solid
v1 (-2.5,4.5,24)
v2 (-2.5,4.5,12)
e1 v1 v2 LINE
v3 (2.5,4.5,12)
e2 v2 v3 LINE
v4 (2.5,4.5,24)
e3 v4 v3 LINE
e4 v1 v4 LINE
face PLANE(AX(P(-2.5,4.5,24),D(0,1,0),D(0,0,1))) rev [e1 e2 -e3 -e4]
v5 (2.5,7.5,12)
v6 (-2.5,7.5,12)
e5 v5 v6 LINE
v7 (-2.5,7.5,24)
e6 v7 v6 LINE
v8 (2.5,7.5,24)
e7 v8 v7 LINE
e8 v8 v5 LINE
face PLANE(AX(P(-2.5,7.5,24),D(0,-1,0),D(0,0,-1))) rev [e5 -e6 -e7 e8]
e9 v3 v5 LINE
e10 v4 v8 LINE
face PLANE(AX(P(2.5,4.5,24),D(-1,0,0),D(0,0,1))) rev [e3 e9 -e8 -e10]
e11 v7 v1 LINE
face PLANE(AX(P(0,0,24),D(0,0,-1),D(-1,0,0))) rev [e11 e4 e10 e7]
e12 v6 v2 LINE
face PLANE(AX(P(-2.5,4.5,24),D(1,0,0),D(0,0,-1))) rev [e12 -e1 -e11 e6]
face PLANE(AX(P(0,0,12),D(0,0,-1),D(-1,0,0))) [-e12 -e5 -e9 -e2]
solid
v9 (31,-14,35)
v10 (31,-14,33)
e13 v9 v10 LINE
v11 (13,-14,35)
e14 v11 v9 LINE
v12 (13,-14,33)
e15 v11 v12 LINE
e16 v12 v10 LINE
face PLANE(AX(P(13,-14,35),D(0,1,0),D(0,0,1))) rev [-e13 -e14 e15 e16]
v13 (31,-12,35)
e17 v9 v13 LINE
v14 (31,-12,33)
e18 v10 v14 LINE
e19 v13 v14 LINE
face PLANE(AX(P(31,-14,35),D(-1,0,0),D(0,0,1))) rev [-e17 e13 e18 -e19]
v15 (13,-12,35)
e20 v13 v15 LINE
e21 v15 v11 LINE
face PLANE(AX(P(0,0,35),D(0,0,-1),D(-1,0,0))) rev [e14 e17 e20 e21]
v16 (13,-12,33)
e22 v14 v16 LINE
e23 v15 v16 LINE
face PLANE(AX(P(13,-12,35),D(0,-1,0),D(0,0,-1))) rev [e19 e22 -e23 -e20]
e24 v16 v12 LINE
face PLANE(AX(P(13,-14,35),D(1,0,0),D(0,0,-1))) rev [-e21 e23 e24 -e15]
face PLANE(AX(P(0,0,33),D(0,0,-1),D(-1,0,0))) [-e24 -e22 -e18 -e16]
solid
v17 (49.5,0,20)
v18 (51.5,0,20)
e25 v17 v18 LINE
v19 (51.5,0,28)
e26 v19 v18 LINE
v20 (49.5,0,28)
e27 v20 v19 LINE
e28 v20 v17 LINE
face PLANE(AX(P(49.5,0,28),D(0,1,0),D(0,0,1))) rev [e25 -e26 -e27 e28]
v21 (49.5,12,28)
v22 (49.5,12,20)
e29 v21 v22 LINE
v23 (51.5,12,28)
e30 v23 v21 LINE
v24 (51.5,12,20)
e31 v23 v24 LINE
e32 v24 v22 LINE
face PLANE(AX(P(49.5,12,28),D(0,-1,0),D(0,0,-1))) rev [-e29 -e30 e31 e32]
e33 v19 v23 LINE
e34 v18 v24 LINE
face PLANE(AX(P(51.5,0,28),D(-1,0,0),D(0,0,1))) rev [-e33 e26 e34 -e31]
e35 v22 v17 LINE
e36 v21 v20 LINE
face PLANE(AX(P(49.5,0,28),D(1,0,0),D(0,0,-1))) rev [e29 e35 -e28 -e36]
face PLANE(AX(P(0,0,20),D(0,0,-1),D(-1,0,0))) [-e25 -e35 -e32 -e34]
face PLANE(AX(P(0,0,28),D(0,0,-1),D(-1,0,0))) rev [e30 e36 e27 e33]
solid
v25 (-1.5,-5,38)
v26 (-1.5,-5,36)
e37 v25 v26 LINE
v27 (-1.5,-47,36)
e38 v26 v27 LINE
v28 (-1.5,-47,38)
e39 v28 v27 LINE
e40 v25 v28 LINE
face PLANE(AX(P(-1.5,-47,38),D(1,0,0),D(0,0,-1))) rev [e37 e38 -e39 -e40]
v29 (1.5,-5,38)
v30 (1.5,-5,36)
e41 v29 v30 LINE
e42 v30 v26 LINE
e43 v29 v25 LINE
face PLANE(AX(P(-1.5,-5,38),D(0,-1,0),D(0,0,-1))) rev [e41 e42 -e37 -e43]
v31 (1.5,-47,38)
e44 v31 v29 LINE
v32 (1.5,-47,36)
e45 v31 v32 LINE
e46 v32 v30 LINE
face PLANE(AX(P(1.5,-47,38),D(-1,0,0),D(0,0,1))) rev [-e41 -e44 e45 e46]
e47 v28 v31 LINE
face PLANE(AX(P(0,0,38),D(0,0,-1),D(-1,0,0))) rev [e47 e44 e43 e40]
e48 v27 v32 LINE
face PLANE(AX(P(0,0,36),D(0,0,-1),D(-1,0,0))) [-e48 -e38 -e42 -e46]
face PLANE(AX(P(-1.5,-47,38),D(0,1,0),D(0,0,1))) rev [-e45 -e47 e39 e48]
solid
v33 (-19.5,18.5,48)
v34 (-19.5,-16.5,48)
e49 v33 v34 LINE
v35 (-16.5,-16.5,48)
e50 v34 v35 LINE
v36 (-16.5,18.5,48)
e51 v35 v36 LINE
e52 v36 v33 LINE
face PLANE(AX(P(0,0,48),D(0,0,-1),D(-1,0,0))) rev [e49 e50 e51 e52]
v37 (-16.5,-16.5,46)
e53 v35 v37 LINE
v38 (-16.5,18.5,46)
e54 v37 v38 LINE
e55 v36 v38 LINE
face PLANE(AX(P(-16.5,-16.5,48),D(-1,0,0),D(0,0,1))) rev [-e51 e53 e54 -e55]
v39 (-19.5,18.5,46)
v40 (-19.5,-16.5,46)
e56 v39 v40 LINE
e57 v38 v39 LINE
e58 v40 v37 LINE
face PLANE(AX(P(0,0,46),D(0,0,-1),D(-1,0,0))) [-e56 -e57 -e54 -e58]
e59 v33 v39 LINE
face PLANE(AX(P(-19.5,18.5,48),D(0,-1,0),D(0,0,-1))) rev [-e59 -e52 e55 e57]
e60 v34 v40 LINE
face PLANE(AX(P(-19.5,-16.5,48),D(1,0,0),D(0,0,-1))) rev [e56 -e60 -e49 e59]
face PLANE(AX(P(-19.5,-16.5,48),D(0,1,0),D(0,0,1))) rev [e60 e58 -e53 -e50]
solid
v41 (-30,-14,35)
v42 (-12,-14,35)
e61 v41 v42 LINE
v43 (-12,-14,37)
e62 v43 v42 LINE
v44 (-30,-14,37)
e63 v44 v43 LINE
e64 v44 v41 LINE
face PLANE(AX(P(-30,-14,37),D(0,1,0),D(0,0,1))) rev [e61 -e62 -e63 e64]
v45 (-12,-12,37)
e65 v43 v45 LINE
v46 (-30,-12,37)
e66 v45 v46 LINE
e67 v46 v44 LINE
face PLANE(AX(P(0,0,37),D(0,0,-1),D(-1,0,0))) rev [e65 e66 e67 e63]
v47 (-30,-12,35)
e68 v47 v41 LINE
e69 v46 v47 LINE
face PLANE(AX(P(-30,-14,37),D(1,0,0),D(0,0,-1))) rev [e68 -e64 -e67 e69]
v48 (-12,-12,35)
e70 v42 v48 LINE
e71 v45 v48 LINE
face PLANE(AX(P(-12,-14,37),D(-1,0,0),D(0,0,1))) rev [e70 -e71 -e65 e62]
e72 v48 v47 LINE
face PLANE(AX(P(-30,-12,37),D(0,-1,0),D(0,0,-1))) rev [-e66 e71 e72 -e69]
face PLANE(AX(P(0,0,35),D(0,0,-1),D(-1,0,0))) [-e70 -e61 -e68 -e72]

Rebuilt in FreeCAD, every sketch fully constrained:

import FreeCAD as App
import Part
import Sketcher
from FreeCAD import Vector

doc = App.newDocument("Part")
body = doc.addObject("PartDesign::Body", "Body")

sketch1 = body.newObject("Sketcher::SketchObject", "Sketch")
sketch1.AttachmentSupport = (doc.getObject("XY_Plane"), [""])
sketch1.MapMode = "FlatFace"
sketch1.AttachmentOffset = App.Placement(Vector(0, 0, 36), App.Rotation())
sketch1.addGeometry([
    Part.LineSegment(Vector(-1.5, -5, 0), Vector(-1.5, -47, 0)),
    Part.LineSegment(Vector(-1.5, -47, 0), Vector(1.5, -47, 0)),
    Part.LineSegment(Vector(1.5, -47, 0), Vector(1.5, -5, 0)),
    Part.LineSegment(Vector(1.5, -5, 0), Vector(-1.5, -5, 0)),
], False)
sketch1.addConstraint([
    Sketcher.Constraint("Coincident", 0, 2, 1, 1),
    Sketcher.Constraint("Coincident", 1, 2, 2, 1),
    Sketcher.Constraint("Coincident", 2, 2, 3, 1),
    Sketcher.Constraint("Coincident", 3, 2, 0, 1),
    Sketcher.Constraint("Vertical", 0),
    Sketcher.Constraint("Horizontal", 1),
    Sketcher.Constraint("Vertical", 2),
    Sketcher.Constraint("Horizontal", 3),
    Sketcher.Constraint("DistanceX", 1, 1, 1, 2, 3.0),
    Sketcher.Constraint("DistanceY", 0, 2, 0, 1, 42.0),
    Sketcher.Constraint("DistanceY", 0, 2, -1, 1, 47.0),
    Sketcher.Constraint("DistanceX", 0, 2, -1, 1, 1.5),
])
pad1 = body.newObject("PartDesign::Pad", "Pad")
pad1.Profile = sketch1
pad1.Length = 2
body2 = doc.addObject("PartDesign::Body", "Body001")

sketch2 = body2.newObject("Sketcher::SketchObject", "Sketch001")
sketch2.AttachmentSupport = (doc.getObject("XY_Plane001"), [""])
sketch2.MapMode = "FlatFace"
sketch2.AttachmentOffset = App.Placement(Vector(0, 0, 46), App.Rotation())
sketch2.addGeometry([
    Part.LineSegment(Vector(-19.5, 18.5, 0), Vector(-19.5, -16.5, 0)),
    Part.LineSegment(Vector(-19.5, -16.5, 0), Vector(-16.5, -16.5, 0)),
    Part.LineSegment(Vector(-16.5, -16.5, 0), Vector(-16.5, 18.5, 0)),
    Part.LineSegment(Vector(-16.5, 18.5, 0), Vector(-19.5, 18.5, 0)),
], False)
sketch2.addConstraint([
    Sketcher.Constraint("Coincident", 0, 2, 1, 1),
    Sketcher.Constraint("Coincident", 1, 2, 2, 1),
    Sketcher.Constraint("Coincident", 2, 2, 3, 1),
    Sketcher.Constraint("Coincident", 3, 2, 0, 1),
    Sketcher.Constraint("Vertical", 0),
    Sketcher.Constraint("Horizontal", 1),
    Sketcher.Constraint("Vertical", 2),
    Sketcher.Constraint("Horizontal", 3),
    Sketcher.Constraint("DistanceX", 1, 1, 1, 2, 3.0),
    Sketcher.Constraint("DistanceY", 0, 2, 0, 1, 35.0),
    Sketcher.Constraint("DistanceX", 0, 2, -1, 1, 19.5),
    Sketcher.Constraint("DistanceY", 0, 2, -1, 1, 16.5),
])
pad2 = body2.newObject("PartDesign::Pad", "Pad001")
pad2.Profile = sketch2
pad2.Length = 2
body3 = doc.addObject("PartDesign::Body", "Body002")

sketch3 = body3.newObject("Sketcher::SketchObject", "Sketch002")
sketch3.AttachmentSupport = (doc.getObject("XY_Plane002"), [""])
sketch3.MapMode = "FlatFace"
sketch3.AttachmentOffset = App.Placement(Vector(0, 0, 35), App.Rotation())
sketch3.addGeometry([
    Part.LineSegment(Vector(-30, -12, 0), Vector(-30, -14, 0)),
    Part.LineSegment(Vector(-30, -14, 0), Vector(-12, -14, 0)),
    Part.LineSegment(Vector(-12, -14, 0), Vector(-12, -12, 0)),
    Part.LineSegment(Vector(-12, -12, 0), Vector(-30, -12, 0)),
], False)
sketch3.addConstraint([
    Sketcher.Constraint("Coincident", 0, 2, 1, 1),
    Sketcher.Constraint("Coincident", 1, 2, 2, 1),
    Sketcher.Constraint("Coincident", 2, 2, 3, 1),
    Sketcher.Constraint("Coincident", 3, 2, 0, 1),
    Sketcher.Constraint("Vertical", 0),
    Sketcher.Constraint("Horizontal", 1),
    Sketcher.Constraint("Vertical", 2),
    Sketcher.Constraint("Horizontal", 3),
    Sketcher.Constraint("DistanceX", 1, 1, 1, 2, 18.0),
    Sketcher.Constraint("DistanceY", 0, 2, 0, 1, 2.0),
    Sketcher.Constraint("DistanceX", 0, 2, -1, 1, 30.0),
    Sketcher.Constraint("DistanceY", 0, 2, -1, 1, 14.0),
])
pad3 = body3.newObject("PartDesign::Pad", "Pad002")
pad3.Profile = sketch3
pad3.Length = 2
body4 = doc.addObject("PartDesign::Body", "Body003")

sketch4 = body4.newObject("Sketcher::SketchObject", "Sketch003")
sketch4.AttachmentSupport = (doc.getObject("XY_Plane003"), [""])
sketch4.MapMode = "FlatFace"
sketch4.AttachmentOffset = App.Placement(Vector(0, 0, 33), App.Rotation())
sketch4.addGeometry([
    Part.LineSegment(Vector(13, -12, 0), Vector(13, -14, 0)),
    Part.LineSegment(Vector(13, -14, 0), Vector(31, -14, 0)),
    Part.LineSegment(Vector(31, -14, 0), Vector(31, -12, 0)),
    Part.LineSegment(Vector(31, -12, 0), Vector(13, -12, 0)),
], False)
sketch4.addConstraint([
    Sketcher.Constraint("Coincident", 0, 2, 1, 1),
    Sketcher.Constraint("Coincident", 1, 2, 2, 1),
    Sketcher.Constraint("Coincident", 2, 2, 3, 1),
    Sketcher.Constraint("Coincident", 3, 2, 0, 1),
    Sketcher.Constraint("Vertical", 0),
    Sketcher.Constraint("Horizontal", 1),
    Sketcher.Constraint("Vertical", 2),
    Sketcher.Constraint("Horizontal", 3),
    Sketcher.Constraint("DistanceX", 1, 1, 1, 2, 18.0),
    Sketcher.Constraint("DistanceY", 0, 2, 0, 1, 2.0),
    Sketcher.Constraint("DistanceX", -1, 1, 0, 2, 13.0),
    Sketcher.Constraint("DistanceY", 0, 2, -1, 1, 14.0),
])
pad4 = body4.newObject("PartDesign::Pad", "Pad003")
pad4.Profile = sketch4
pad4.Length = 2
body5 = doc.addObject("PartDesign::Body", "Body004")

sketch5 = body5.newObject("Sketcher::SketchObject", "Sketch004")
sketch5.AttachmentSupport = (doc.getObject("XY_Plane004"), [""])
sketch5.MapMode = "FlatFace"
sketch5.AttachmentOffset = App.Placement(Vector(0, 0, 12), App.Rotation())
sketch5.addGeometry([
    Part.LineSegment(Vector(-2.5, 7.5, 0), Vector(-2.5, 4.5, 0)),
    Part.LineSegment(Vector(-2.5, 4.5, 0), Vector(2.5, 4.5, 0)),
    Part.LineSegment(Vector(2.5, 4.5, 0), Vector(2.5, 7.5, 0)),
    Part.LineSegment(Vector(2.5, 7.5, 0), Vector(-2.5, 7.5, 0)),
], False)
sketch5.addConstraint([
    Sketcher.Constraint("Coincident", 0, 2, 1, 1),
    Sketcher.Constraint("Coincident", 1, 2, 2, 1),
    Sketcher.Constraint("Coincident", 2, 2, 3, 1),
    Sketcher.Constraint("Coincident", 3, 2, 0, 1),
    Sketcher.Constraint("Vertical", 0),
    Sketcher.Constraint("Horizontal", 1),
    Sketcher.Constraint("Vertical", 2),
    Sketcher.Constraint("Horizontal", 3),
    Sketcher.Constraint("DistanceX", 1, 1, 1, 2, 5.0),
    Sketcher.Constraint("DistanceY", 0, 2, 0, 1, 3.0),
    Sketcher.Constraint("DistanceX", 0, 2, -1, 1, 2.5),
    Sketcher.Constraint("DistanceY", -1, 1, 0, 2, 4.5),
])
pad5 = body5.newObject("PartDesign::Pad", "Pad004")
pad5.Profile = sketch5
pad5.Length = 12
body6 = doc.addObject("PartDesign::Body", "Body005")

sketch6 = body6.newObject("Sketcher::SketchObject", "Sketch005")
sketch6.AttachmentSupport = (doc.getObject("XY_Plane005"), [""])
sketch6.MapMode = "FlatFace"
sketch6.AttachmentOffset = App.Placement(Vector(0, 0, 20), App.Rotation())
sketch6.addGeometry([
    Part.LineSegment(Vector(49.5, 12, 0), Vector(49.5, 0, 0)),
    Part.LineSegment(Vector(49.5, 0, 0), Vector(51.5, 0, 0)),
    Part.LineSegment(Vector(51.5, 0, 0), Vector(51.5, 12, 0)),
    Part.LineSegment(Vector(51.5, 12, 0), Vector(49.5, 12, 0)),
], False)
sketch6.addConstraint([
    Sketcher.Constraint("Coincident", 0, 2, 1, 1),
    Sketcher.Constraint("Coincident", 1, 2, 2, 1),
    Sketcher.Constraint("Coincident", 2, 2, 3, 1),
    Sketcher.Constraint("Coincident", 3, 2, 0, 1),
    Sketcher.Constraint("Vertical", 0),
    Sketcher.Constraint("Horizontal", 1),
    Sketcher.Constraint("Vertical", 2),
    Sketcher.Constraint("Horizontal", 3),
    Sketcher.Constraint("PointOnObject", 0, 2, -1),
    Sketcher.Constraint("DistanceX", 1, 1, 1, 2, 2.0),
    Sketcher.Constraint("DistanceY", 0, 2, 0, 1, 12.0),
    Sketcher.Constraint("DistanceX", -1, 1, 0, 2, 49.5),
])
pad6 = body6.newObject("PartDesign::Pad", "Pad005")
pad6.Profile = sketch6
pad6.Length = 8

doc.recompute()
